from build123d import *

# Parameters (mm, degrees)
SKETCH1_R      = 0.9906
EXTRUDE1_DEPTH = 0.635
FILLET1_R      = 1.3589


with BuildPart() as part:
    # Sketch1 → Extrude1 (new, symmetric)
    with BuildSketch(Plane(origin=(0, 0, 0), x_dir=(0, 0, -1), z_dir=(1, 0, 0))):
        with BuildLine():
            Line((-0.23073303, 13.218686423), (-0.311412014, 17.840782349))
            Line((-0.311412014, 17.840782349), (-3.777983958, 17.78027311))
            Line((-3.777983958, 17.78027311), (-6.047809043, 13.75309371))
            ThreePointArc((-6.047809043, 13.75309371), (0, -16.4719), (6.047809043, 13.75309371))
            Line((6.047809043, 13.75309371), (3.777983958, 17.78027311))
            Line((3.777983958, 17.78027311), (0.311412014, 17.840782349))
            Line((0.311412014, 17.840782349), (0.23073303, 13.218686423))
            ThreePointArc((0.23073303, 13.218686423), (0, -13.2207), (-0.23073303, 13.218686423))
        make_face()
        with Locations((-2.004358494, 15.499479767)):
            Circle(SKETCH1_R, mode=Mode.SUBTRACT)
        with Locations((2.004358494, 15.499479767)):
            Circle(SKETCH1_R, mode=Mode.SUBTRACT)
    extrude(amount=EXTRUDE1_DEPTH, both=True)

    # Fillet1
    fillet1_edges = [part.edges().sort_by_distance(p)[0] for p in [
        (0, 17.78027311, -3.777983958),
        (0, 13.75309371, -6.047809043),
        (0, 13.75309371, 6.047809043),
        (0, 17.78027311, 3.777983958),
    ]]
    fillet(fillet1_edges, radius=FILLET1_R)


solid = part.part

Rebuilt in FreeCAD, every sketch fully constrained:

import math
import FreeCAD as App
import Part
import Sketcher
Q = App.Units.Quantity


def edges_at(feature, points):
    """Names of the edges that pass closest to the given points."""
    edges = feature.Shape.Edges
    near = lambda p: min(range(len(edges)), key=lambda i: edges[i].distToShape(Part.Vertex(*p))[0])
    return sorted({f"Edge{near(p) + 1}" for p in points})

doc = App.newDocument("Part")
body = doc.addObject("PartDesign::Body", "Body")

# Sketch on YZ plane
sketch1 = doc.addObject("Sketcher::SketchObject", "Sketch")
body.addObject(sketch1)
sketch1.AttachmentSupport = (doc.YZ_Plane, [""])
sketch1.MapMode = "FlatFace"
sketch1.addGeometry([
    Part.LineSegment(App.Vector(13.22, 0.23, 0), App.Vector(17.84, 0.31, 0)),  # 0
    Part.LineSegment(App.Vector(17.84, 0.31, 0), App.Vector(17.78, 3.78, 0)),  # 1
    Part.LineSegment(App.Vector(17.78, 3.78, 0), App.Vector(13.75, 6.05, 0)),  # 2
    Part.ArcOfCircle(Part.Circle(App.Vector(-0.75, 0, 0), App.Vector(0, 0, 1), 15.72), math.radians(23), math.radians(337)),  # 3
    Part.LineSegment(App.Vector(13.75, -6.05, 0), App.Vector(17.78, -3.78, 0)),  # 4
    Part.LineSegment(App.Vector(17.78, -3.78, 0), App.Vector(17.84, -0.31, 0)),  # 5
    Part.LineSegment(App.Vector(17.84, -0.31, 0), App.Vector(13.22, -0.23, 0)),  # 6
    Part.ArcOfCircle(Part.Circle(App.Vector(0, 0, 0), App.Vector(0, 0, 1), 13.22), math.radians(1), math.radians(359)),  # 7
    Part.Circle(App.Vector(15.5, 2, 0), App.Vector(0, 0, 1), 0.99),  # 8
    Part.Circle(App.Vector(15.5, -2, 0), App.Vector(0, 0, 1), 0.99),  # 9
], False)
sketch1.addConstraint([
    Sketcher.Constraint("Coincident", 0, 2, 1, 1),
    Sketcher.Constraint("Coincident", 1, 2, 2, 1),
    Sketcher.Constraint("Coincident", 2, 2, 3, 1),
    Sketcher.Constraint("Coincident", 3, 2, 4, 1),
    Sketcher.Constraint("Coincident", 4, 2, 5, 1),
    Sketcher.Constraint("Coincident", 5, 2, 6, 1),
    Sketcher.Constraint("Coincident", 6, 2, 7, 2),
    Sketcher.Constraint("Coincident", 7, 1, 0, 1),
    Sketcher.Constraint("Coincident", 7, 3, -1, 1),
    Sketcher.Constraint("Equal", 8, 9),
    Sketcher.Constraint("Symmetric", 8, 3, 9, 3, -1),
    Sketcher.Constraint("Symmetric", 2, 2, 3, 2, -1),
    Sketcher.Constraint("Symmetric", 1, 2, 4, 2, -1),
    Sketcher.Constraint("Symmetric", 0, 2, 5, 2, -1),
    Sketcher.Constraint("Perpendicular", 0, 1),
    Sketcher.Constraint("Perpendicular", 5, 6),
    Sketcher.Constraint("Equal", 0, 2),
    Sketcher.Constraint("Diameter", 8, Q("0.078 in")),
    Sketcher.Constraint("Angle", 0, Q("1 deg")),
    Sketcher.Constraint("Radius", 7, Q("0.5205 in")),
    Sketcher.Constraint("Distance", 0, Q("0.182 in")),
    Sketcher.Constraint("Radius", 3, 15.717559),
    Sketcher.Constraint("DistanceY", 4, 2, 0, 2, Q("0.1609998 in")),
    Sketcher.Constraint("Distance", 1, Q("0.1365 in")),
    Sketcher.Constraint("DistanceX", 3, 3, -1, 1, 0.754341),
    Sketcher.Constraint("DistanceX", -1, 1, 8, 3, 15.49948),
    Sketcher.Constraint("DistanceY", -1, 1, 8, 3, 2.004358),
])
pad1 = doc.addObject("PartDesign::Pad", "Pad")
body.addObject(pad1)
pad1.Profile = sketch1
pad1.Length = Q("0.05 in")
pad1.Midplane = True
doc.recompute()

fillet = doc.addObject("PartDesign::Fillet", "Fillet")
body.addObject(fillet)
fillet.Base = (pad1, edges_at(pad1, [
    (0, 17.78, -3.778),
    (0, 13.753, -6.048),
    (0, 13.753, 6.048),
    (0, 17.78, 3.778),
]))
fillet.Radius = Q("0.0535 in")

doc.recompute()
